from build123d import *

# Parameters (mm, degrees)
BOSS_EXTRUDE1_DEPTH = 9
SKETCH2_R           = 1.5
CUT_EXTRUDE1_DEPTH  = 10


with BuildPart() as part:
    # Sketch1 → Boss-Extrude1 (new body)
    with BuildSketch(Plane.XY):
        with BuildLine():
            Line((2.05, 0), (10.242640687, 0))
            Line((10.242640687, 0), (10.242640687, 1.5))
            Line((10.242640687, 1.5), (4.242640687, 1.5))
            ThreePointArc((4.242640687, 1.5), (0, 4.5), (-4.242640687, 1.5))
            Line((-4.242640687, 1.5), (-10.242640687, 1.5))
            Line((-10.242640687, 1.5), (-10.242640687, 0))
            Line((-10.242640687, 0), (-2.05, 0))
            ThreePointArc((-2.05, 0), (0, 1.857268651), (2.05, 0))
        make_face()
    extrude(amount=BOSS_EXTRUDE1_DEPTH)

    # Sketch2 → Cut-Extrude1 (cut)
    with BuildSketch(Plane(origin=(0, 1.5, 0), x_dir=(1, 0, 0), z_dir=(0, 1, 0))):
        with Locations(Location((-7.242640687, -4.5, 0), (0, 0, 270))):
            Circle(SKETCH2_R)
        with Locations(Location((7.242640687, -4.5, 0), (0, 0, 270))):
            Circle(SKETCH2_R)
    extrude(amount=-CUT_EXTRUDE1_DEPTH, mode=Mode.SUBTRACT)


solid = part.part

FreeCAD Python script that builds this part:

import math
import FreeCAD as App
import Part
import Sketcher
Q = App.Units.Quantity

doc = App.newDocument("Part")
body = doc.addObject("PartDesign::Body", "Body")

sketch1 = doc.addObject("Sketcher::SketchObject", "Sketch")
body.addObject(sketch1)
sketch1.AttachmentSupport = (doc.XY_Plane, [""])
sketch1.MapMode = "FlatFace"
sketch1.addGeometry([
    Part.LineSegment(App.Vector(2.05, 0, 0), App.Vector(10.242641, 0, 0)),
    Part.LineSegment(App.Vector(10.242641, 0, 0), App.Vector(10.242641, 1.5, 0)),
    Part.LineSegment(App.Vector(10.242641, 1.5, 0), App.Vector(4.242641, 1.5, 0)),
    Part.ArcOfCircle(Part.Circle(App.Vector(0, 0, 0), App.Vector(0, 0, 1), 4.5), math.radians(19.471221), math.radians(160.528779)),
    Part.LineSegment(App.Vector(-4.242641, 1.5, 0), App.Vector(-10.242641, 1.5, 0)),
    Part.LineSegment(App.Vector(-10.242641, 1.5, 0), App.Vector(-10.242641, 0, 0)),
    Part.LineSegment(App.Vector(-10.242641, 0, 0), App.Vector(-2.05, 0, 0)),
    Part.ArcOfCircle(Part.Circle(App.Vector(0, -0.202731, 0), App.Vector(0, 0, 1), 2.06), math.radians(5.647807), math.radians(174.352193)),
], False)
sketch1.addConstraint([
    Sketcher.Constraint("Coincident", 0, 2, 1, 1),
    Sketcher.Constraint("Coincident", 1, 2, 2, 1),
    Sketcher.Constraint("Coincident", 2, 2, 3, 1),
    Sketcher.Constraint("Coincident", 3, 2, 4, 1),
    Sketcher.Constraint("Coincident", 4, 2, 5, 1),
    Sketcher.Constraint("Coincident", 5, 2, 6, 1),
    Sketcher.Constraint("Coincident", 6, 2, 7, 2),
    Sketcher.Constraint("Coincident", 7, 1, 0, 1),
    Sketcher.Constraint("Horizontal", 0),
    Sketcher.Constraint("Vertical", 1),
    Sketcher.Constraint("Horizontal", 2),
    Sketcher.Constraint("Horizontal", 4),
    Sketcher.Constraint("Vertical", 5),
    Sketcher.Constraint("Horizontal", 6),
    Sketcher.Constraint("Coincident", 3, 3, -1, 1),
    Sketcher.Constraint("Symmetric", 0, 2, 5, 2, -1, 1),
    Sketcher.Constraint("Symmetric", 6, 2, 7, 1, -2),
    Sketcher.Constraint("Horizontal", 2, 2, 3, 2),
    Sketcher.Constraint("Radius", 3, Q("4.5 mm")),
    Sketcher.Constraint("DistanceX", 2, 2, 2, 1, Q("6 mm")),
    Sketcher.Constraint("Radius", 7, Q("2.06 mm")),
    Sketcher.Constraint("DistanceY", 1, 1, 1, 2, Q("1.5 mm")),
    Sketcher.Constraint("DistanceX", 6, 2, 7, 1, Q("4.1 mm")),
])
pad1 = doc.addObject("PartDesign::Pad", "Pad")
body.addObject(pad1)
pad1.Profile = sketch1
pad1.Length = 9

sketch2 = doc.addObject("Sketcher::SketchObject", "Sketch001")
body.addObject(sketch2)
sketch2.AttachmentSupport = (doc.XZ_Plane, [""])
sketch2.MapMode = "FlatFace"
sketch2.AttachmentOffset = App.Placement(App.Vector(0, 0, -1.5), App.Rotation())
sketch2.addGeometry([
    Part.Circle(App.Vector(-7.242641, 4.5, 0), App.Vector(0, 0, 1), 1.5),
    Part.Circle(App.Vector(7.242641, 4.5, 0), App.Vector(0, 0, 1), 1.5),
], False)
sketch2.addConstraint([
    Sketcher.Constraint("Equal", 0, 1),
    Sketcher.Constraint("Symmetric", 0, 3, 1, 3, -2),
    Sketcher.Constraint("Diameter", 0, Q("3 mm")),
    Sketcher.Constraint("DistanceY", -1, 1, 0, 3, Q("4.5 mm")),
    Sketcher.Constraint("DistanceX", 0, 3, -1, 1, Q("7.242641 mm")),
])
pocket1 = doc.addObject("PartDesign::Pocket", "Pocket")
body.addObject(pocket1)
pocket1.Profile = sketch2
pocket1.Length = 10
pocket1.Reversed = True

doc.recompute()
